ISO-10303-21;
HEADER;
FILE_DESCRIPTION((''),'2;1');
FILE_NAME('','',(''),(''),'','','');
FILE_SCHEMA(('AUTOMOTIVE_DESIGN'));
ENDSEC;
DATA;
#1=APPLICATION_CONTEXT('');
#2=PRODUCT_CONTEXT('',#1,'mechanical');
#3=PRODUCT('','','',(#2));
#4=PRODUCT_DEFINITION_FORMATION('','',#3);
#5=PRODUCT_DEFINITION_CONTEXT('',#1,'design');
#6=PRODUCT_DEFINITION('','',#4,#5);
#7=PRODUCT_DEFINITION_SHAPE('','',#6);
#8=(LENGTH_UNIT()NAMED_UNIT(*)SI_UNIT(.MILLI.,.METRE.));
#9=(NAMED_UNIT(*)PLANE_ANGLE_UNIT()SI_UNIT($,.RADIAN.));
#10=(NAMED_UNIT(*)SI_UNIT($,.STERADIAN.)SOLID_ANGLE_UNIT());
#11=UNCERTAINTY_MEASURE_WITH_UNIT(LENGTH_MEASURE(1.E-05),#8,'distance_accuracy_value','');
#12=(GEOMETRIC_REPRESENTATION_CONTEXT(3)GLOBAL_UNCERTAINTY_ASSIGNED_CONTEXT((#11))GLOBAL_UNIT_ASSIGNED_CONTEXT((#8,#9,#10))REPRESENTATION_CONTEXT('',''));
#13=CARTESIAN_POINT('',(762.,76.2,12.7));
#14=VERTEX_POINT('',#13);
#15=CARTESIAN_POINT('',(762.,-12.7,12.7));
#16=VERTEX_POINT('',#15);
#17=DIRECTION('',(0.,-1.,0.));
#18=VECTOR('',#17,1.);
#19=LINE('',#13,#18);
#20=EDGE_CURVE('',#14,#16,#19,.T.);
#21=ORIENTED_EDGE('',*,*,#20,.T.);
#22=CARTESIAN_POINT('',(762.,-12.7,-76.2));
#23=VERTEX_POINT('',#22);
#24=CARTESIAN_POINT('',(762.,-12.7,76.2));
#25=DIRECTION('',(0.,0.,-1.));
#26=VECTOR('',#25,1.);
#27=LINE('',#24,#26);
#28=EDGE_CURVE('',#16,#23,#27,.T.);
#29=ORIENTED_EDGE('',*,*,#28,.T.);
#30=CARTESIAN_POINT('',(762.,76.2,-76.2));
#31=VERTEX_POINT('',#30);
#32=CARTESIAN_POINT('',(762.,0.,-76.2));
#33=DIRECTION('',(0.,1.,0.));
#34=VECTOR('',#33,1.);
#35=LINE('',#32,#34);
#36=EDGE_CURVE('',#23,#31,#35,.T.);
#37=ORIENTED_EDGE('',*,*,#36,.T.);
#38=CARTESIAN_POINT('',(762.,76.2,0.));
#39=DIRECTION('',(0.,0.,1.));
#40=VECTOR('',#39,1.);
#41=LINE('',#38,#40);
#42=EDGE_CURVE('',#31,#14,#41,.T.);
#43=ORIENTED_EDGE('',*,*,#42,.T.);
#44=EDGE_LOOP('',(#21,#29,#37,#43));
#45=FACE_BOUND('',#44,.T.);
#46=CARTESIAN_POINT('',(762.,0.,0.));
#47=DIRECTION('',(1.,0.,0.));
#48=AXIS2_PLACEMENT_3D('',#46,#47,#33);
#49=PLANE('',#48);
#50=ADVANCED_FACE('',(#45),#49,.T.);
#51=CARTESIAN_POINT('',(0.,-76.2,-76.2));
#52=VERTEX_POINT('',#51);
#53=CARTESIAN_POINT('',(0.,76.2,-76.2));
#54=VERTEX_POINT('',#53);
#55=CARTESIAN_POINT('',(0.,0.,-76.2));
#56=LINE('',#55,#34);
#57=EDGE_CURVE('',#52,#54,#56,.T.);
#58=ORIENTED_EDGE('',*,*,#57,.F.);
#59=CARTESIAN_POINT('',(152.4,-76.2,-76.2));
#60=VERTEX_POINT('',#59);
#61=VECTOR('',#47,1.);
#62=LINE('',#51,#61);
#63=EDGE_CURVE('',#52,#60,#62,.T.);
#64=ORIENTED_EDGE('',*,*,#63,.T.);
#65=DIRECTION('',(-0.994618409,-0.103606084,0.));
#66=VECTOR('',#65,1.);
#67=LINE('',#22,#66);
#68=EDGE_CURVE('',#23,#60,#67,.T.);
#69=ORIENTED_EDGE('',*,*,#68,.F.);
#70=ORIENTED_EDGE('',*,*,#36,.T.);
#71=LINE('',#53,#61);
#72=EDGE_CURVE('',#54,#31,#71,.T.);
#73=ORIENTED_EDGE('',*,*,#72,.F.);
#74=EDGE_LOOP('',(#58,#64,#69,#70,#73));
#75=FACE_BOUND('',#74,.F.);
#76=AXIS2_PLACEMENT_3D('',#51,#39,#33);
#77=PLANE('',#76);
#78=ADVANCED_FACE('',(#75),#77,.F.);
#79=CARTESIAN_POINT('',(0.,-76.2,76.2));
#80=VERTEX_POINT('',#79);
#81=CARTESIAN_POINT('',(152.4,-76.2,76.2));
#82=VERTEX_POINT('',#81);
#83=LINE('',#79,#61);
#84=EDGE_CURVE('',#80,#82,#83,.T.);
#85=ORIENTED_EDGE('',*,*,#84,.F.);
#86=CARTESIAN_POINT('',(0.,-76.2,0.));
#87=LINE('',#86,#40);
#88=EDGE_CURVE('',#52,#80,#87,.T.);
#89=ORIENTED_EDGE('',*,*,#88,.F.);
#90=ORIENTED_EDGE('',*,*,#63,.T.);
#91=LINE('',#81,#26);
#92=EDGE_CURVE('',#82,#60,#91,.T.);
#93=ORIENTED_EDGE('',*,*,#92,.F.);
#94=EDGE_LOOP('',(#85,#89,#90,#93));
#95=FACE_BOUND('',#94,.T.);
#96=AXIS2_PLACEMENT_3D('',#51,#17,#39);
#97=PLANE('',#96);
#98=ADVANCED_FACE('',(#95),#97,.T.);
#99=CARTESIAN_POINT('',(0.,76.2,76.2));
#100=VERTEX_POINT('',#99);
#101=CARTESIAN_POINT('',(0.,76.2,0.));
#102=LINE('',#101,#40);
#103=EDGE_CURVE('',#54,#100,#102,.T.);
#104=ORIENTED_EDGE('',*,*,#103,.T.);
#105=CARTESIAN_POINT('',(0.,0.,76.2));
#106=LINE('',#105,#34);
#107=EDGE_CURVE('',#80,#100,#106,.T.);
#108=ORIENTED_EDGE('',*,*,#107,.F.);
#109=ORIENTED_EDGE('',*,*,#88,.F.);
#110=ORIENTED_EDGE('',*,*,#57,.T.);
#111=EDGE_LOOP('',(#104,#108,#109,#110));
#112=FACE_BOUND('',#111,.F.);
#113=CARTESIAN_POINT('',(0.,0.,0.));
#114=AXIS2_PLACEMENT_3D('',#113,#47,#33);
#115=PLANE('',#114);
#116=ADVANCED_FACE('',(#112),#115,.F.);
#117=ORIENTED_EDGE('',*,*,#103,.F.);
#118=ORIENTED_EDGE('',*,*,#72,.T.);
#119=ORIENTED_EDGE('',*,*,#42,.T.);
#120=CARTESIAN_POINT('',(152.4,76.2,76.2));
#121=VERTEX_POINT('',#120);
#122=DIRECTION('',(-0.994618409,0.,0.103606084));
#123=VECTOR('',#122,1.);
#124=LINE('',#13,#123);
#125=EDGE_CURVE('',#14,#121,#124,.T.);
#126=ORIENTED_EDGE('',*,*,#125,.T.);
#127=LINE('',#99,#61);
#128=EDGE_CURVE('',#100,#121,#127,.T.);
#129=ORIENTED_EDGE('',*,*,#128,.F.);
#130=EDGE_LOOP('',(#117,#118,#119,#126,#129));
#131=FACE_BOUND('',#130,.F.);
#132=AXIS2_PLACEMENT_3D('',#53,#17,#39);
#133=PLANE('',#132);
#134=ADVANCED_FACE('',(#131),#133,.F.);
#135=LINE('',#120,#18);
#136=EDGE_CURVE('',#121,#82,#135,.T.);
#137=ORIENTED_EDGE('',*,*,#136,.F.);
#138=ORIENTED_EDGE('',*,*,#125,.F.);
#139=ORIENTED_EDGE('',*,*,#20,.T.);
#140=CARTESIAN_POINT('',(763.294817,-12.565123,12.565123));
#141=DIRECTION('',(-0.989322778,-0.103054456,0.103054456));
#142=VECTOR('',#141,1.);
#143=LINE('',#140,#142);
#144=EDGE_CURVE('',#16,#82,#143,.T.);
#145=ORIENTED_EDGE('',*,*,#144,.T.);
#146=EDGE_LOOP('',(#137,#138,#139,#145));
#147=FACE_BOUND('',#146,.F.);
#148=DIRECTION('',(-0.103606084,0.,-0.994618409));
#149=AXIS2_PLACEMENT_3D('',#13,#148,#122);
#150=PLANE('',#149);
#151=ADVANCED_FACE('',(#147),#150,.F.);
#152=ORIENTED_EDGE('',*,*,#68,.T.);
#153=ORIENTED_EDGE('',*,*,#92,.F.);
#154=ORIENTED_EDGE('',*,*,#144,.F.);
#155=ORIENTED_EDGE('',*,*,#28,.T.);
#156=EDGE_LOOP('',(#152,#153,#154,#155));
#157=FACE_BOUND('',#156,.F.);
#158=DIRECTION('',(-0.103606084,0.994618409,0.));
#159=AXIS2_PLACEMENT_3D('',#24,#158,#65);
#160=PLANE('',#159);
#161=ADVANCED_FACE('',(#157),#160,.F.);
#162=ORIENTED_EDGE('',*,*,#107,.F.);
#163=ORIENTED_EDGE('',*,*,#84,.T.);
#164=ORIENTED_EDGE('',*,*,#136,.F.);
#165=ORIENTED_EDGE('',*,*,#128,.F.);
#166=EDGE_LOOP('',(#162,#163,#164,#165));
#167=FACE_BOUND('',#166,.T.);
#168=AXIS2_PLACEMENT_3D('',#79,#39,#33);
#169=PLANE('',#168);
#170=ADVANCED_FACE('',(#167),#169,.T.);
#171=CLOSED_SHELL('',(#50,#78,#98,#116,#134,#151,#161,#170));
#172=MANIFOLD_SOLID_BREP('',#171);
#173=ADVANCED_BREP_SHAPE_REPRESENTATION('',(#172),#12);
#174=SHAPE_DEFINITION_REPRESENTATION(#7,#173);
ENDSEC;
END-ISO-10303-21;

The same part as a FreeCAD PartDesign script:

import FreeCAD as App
import Part
import Sketcher

V = App.Vector
Q = App.Units.Quantity

doc = App.newDocument("Part")
body = doc.addObject("PartDesign::Body", "Body")

sketch1 = body.newObject("Sketcher::SketchObject", "Sketch")
sketch1.AttachmentSupport = (doc.getObject("YZ_Plane"), [""])
sketch1.MapMode = "FlatFace"
sketch1.addGeometry(Part.LineSegment(V(-76, 76, 0), V(-76, -76, 0)), False)
sketch1.addGeometry(Part.LineSegment(V(-76, -76, 0), V(76, -76, 0)), False)
sketch1.addGeometry(Part.LineSegment(V(76, -76, 0), V(76, 76, 0)), False)
sketch1.addGeometry(Part.LineSegment(V(76, 76, 0), V(-76, 76, 0)), False)
sketch1.addConstraint(Sketcher.Constraint("Coincident", 0, 2, 1, 1))
sketch1.addConstraint(Sketcher.Constraint("Coincident", 1, 2, 2, 1))
sketch1.addConstraint(Sketcher.Constraint("Coincident", 2, 2, 3, 1))
sketch1.addConstraint(Sketcher.Constraint("Coincident", 3, 2, 0, 1))
sketch1.addConstraint(Sketcher.Constraint("Vertical", 0))
sketch1.addConstraint(Sketcher.Constraint("Horizontal", 1))
sketch1.addConstraint(Sketcher.Constraint("Vertical", 2))
sketch1.addConstraint(Sketcher.Constraint("Horizontal", 3))
sketch1.addConstraint(Sketcher.Constraint("Symmetric", 0, 2, 2, 2, -1, 1))
sketch1.addConstraint(Sketcher.Constraint("Equal", 3, 0))
sketch1.addConstraint(Sketcher.Constraint("DistanceX", 1, 1, 1, 2, Q("6 in")))
pad1 = body.newObject("PartDesign::Pad", "Pad")
pad1.Profile = sketch1
pad1.Length = Q("30 in")

sketch2 = body.newObject("Sketcher::SketchObject", "Sketch001")
sketch2.AttachmentSupport = (doc.getObject("XY_Plane"), [""])
sketch2.MapMode = "FlatFace"
sketch2.AttachmentOffset = App.Placement(V(0, 0, 3 * 25.4), App.Rotation())
sketch2.addGeometry(Part.LineSegment(V(762, -13, 0), V(152, -76, 0)), False)
sketch2.addGeometry(Part.LineSegment(V(152, -76, 0), V(762, -76, 0)), False)
sketch2.addGeometry(Part.LineSegment(V(762, -76, 0), V(762, -13, 0)), False)
sketch2.addConstraint(Sketcher.Constraint("Coincident", 0, 2, 1, 1))
sketch2.addConstraint(Sketcher.Constraint("Coincident", 1, 2, 2, 1))
sketch2.addConstraint(Sketcher.Constraint("Coincident", 2, 2, 0, 1))
sketch2.addConstraint(Sketcher.Constraint("Horizontal", 1))
sketch2.addConstraint(Sketcher.Constraint("Vertical", 2))
sketch2.addConstraint(Sketcher.Constraint("DistanceX", 1, 1, 1, 2, Q("24 in")))
sketch2.addConstraint(Sketcher.Constraint("DistanceY", 2, 1, 2, 2, Q("2.5 in")))
sketch2.addConstraint(Sketcher.Constraint("DistanceX", -1, 1, 0, 2, Q("6 in")))
sketch2.addConstraint(Sketcher.Constraint("DistanceY", 0, 2, -1, 1, Q("3 in")))
pocket1 = body.newObject("PartDesign::Pocket", "Pocket")
pocket1.Profile = sketch2
pocket1.Length = Q("6 in")

sketch3 = body.newObject("Sketcher::SketchObject", "Sketch002")
sketch3.AttachmentSupport = (doc.getObject("XZ_Plane"), [""])
sketch3.MapMode = "FlatFace"
sketch3.AttachmentOffset = App.Placement(V(0, 0, -3 * 25.4), App.Rotation())
sketch3.addGeometry(Part.LineSegment(V(762, 13, 0), V(152, 76, 0)), False)
sketch3.addGeometry(Part.LineSegment(V(152, 76, 0), V(762, 76, 0)), False)
sketch3.addGeometry(Part.LineSegment(V(762, 76, 0), V(762, 13, 0)), False)
sketch3.addConstraint(Sketcher.Constraint("Coincident", 0, 2, 1, 1))
sketch3.addConstraint(Sketcher.Constraint("Coincident", 1, 2, 2, 1))
sketch3.addConstraint(Sketcher.Constraint("Coincident", 2, 2, 0, 1))
sketch3.addConstraint(Sketcher.Constraint("Horizontal", 1))
sketch3.addConstraint(Sketcher.Constraint("Vertical", 2))
sketch3.addConstraint(Sketcher.Constraint("DistanceX", 1, 1, 1, 2, Q("24 in")))
sketch3.addConstraint(Sketcher.Constraint("DistanceY", 2, 2, 2, 1, Q("2.5 in")))
sketch3.addConstraint(Sketcher.Constraint("DistanceX", -1, 1, 0, 2, Q("6 in")))
sketch3.addConstraint(Sketcher.Constraint("DistanceY", -1, 1, 0, 2, Q("3 in")))
pocket2 = body.newObject("PartDesign::Pocket", "Pocket001")
pocket2.Profile = sketch3
pocket2.Length = Q("6 in")
pocket2.Reversed = True

doc.recompute()
